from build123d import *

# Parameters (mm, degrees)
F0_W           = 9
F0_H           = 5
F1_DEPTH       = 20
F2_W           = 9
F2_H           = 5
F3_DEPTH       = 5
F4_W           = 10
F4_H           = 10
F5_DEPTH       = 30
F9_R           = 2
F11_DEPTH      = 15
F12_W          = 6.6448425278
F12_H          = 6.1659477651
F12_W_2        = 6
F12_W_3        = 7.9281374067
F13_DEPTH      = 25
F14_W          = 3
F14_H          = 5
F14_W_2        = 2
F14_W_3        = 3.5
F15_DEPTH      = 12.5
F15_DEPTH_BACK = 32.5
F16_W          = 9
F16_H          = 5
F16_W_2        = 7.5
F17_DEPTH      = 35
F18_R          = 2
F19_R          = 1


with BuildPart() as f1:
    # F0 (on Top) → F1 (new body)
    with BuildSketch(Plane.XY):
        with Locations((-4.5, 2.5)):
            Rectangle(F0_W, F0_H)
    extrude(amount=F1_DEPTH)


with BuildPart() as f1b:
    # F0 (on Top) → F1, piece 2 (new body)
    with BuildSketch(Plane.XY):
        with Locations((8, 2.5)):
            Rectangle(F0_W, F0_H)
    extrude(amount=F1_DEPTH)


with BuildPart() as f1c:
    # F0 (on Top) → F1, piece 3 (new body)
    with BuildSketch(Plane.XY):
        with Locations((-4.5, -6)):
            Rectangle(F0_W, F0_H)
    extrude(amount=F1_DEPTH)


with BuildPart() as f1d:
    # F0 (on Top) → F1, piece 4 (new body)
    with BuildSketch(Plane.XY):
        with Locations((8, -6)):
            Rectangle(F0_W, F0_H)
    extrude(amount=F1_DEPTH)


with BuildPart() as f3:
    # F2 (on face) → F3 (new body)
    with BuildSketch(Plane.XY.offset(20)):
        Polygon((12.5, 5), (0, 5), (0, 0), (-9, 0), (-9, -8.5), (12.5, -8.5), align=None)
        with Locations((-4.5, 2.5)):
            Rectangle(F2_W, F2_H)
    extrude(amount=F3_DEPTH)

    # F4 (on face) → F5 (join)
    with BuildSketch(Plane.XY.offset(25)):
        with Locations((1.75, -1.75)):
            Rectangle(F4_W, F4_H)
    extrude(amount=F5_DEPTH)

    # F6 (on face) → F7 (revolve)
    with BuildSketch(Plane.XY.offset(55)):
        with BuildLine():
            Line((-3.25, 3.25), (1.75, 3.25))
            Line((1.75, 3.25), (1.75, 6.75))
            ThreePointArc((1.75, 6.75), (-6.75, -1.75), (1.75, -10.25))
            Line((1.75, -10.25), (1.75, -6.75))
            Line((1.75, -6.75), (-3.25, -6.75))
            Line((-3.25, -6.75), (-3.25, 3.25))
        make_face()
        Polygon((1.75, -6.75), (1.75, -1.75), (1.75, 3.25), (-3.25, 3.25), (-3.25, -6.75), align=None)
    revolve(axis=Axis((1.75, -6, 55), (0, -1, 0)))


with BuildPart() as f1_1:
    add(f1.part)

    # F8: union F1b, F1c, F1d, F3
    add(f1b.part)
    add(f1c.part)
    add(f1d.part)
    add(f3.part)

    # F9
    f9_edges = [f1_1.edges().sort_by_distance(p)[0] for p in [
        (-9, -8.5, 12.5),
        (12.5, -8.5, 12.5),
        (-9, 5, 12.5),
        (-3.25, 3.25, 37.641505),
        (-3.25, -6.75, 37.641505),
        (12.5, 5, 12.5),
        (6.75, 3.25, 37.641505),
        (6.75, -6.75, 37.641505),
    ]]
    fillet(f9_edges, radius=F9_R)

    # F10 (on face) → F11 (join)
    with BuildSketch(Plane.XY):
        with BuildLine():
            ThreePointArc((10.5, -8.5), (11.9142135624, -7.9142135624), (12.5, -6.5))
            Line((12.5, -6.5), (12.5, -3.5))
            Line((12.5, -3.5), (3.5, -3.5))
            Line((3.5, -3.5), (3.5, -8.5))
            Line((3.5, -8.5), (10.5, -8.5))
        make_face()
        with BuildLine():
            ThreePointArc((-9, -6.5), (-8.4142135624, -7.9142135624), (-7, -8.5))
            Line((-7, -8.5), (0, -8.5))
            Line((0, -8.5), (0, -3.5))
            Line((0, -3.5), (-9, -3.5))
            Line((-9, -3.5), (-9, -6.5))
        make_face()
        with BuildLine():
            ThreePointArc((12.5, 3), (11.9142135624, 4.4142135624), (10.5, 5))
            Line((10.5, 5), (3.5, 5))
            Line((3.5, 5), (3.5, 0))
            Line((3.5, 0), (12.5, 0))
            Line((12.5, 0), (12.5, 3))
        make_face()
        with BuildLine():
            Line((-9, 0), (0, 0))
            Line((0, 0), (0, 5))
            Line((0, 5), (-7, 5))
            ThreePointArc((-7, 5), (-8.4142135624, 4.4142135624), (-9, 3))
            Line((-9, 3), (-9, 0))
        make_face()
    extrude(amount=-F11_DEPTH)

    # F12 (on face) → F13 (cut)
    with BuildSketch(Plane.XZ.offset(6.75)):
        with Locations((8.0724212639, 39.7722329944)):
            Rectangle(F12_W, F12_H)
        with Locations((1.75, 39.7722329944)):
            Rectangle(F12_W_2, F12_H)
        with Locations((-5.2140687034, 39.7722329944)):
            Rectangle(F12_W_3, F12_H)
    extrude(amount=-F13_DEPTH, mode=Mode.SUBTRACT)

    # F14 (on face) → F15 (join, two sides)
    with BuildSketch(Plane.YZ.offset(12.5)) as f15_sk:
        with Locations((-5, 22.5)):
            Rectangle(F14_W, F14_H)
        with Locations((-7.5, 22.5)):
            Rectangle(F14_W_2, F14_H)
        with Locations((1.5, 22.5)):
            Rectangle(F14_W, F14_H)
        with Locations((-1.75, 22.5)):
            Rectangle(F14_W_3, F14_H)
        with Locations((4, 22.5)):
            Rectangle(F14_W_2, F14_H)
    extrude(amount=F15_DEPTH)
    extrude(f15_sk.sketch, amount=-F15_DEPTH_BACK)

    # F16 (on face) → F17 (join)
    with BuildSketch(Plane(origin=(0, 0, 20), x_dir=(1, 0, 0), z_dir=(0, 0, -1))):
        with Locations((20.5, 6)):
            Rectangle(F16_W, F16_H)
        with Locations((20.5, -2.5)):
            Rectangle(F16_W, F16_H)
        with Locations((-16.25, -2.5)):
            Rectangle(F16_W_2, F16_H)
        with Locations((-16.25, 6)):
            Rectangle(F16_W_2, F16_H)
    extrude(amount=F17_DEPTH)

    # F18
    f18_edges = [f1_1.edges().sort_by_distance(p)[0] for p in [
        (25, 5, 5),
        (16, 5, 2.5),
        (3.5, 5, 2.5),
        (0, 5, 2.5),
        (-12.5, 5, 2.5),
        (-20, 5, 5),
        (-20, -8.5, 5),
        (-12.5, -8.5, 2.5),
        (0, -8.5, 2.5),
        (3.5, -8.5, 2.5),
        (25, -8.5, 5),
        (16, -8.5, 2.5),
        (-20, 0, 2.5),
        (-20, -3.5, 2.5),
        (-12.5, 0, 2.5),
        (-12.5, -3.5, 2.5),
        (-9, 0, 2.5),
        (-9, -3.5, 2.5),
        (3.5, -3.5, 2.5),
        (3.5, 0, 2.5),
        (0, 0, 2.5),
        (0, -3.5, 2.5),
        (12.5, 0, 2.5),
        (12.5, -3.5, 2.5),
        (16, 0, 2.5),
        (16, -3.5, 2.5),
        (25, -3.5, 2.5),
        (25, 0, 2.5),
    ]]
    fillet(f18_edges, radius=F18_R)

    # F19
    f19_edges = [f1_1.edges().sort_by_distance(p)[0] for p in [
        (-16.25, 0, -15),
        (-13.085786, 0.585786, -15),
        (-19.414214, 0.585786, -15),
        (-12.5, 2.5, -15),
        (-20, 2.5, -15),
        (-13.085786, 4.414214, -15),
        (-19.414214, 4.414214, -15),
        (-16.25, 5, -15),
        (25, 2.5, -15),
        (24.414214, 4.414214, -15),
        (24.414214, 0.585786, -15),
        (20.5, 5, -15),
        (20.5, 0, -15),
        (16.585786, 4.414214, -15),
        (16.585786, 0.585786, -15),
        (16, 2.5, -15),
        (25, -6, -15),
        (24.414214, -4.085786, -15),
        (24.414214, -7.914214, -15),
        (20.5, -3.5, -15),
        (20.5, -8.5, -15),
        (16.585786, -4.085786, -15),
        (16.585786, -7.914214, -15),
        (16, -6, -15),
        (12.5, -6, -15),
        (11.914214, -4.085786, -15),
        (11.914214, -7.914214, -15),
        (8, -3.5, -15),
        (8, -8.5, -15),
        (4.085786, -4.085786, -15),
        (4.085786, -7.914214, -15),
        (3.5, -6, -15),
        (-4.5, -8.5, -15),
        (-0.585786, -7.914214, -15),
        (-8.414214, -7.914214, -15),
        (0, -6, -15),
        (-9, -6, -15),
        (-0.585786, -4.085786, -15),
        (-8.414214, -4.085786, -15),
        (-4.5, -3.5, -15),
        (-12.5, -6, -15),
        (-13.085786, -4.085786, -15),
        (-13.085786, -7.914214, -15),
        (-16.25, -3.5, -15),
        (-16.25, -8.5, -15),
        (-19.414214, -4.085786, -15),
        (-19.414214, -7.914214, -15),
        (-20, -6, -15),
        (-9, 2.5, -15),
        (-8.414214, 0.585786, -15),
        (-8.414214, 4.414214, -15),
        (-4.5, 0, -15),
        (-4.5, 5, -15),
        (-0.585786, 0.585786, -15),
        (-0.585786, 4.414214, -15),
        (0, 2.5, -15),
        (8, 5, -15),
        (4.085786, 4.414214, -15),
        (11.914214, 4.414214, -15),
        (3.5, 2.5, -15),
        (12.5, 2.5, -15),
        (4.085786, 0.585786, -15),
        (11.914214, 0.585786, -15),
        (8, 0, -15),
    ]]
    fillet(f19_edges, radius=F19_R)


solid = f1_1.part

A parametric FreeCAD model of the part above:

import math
import FreeCAD as App
import Part
import Sketcher

V = App.Vector


def edges_at(feature, points):
    """Names of the edges that pass closest to the given points."""
    edges = feature.Shape.Edges
    near = lambda p: min(range(len(edges)), key=lambda i: edges[i].distToShape(Part.Vertex(*p))[0])
    return sorted({f"Edge{near(p) + 1}" for p in points})

doc = App.newDocument("Part")
body = doc.addObject("PartDesign::Body", "Body")

sketch1 = doc.addObject("Sketcher::SketchObject", "Sketch")
body.addObject(sketch1)
sketch1.AttachmentSupport = (doc.XY_Plane, [""])
sketch1.MapMode = "FlatFace"
sketch1.addGeometry([
    Part.LineSegment(V(-9, 5, 0), V(-9, 0, 0)),
    Part.LineSegment(V(-9, 0, 0), V(0, 0, 0)),
    Part.LineSegment(V(0, 0, 0), V(0, 5, 0)),
    Part.LineSegment(V(0, 5, 0), V(-9, 5, 0)),
], False)
sketch1.addConstraint([
    Sketcher.Constraint("Coincident", 0, 2, 1, 1),
    Sketcher.Constraint("Coincident", 1, 2, 2, 1),
    Sketcher.Constraint("Coincident", 2, 2, 3, 1),
    Sketcher.Constraint("Coincident", 3, 2, 0, 1),
    Sketcher.Constraint("Vertical", 0),
    Sketcher.Constraint("Horizontal", 1),
    Sketcher.Constraint("Vertical", 2),
    Sketcher.Constraint("Horizontal", 3),
    Sketcher.Constraint("Coincident", 1, 2, -1, 1),
    Sketcher.Constraint("DistanceX", 1, 1, 1, 2, 9.0),
    Sketcher.Constraint("DistanceY", 0, 2, 0, 1, 5.0),
])
pad1 = doc.addObject("PartDesign::Pad", "Pad")
body.addObject(pad1)
pad1.Profile = sketch1
pad1.Length = 20
body2 = doc.addObject("PartDesign::Body", "Body001")

sketch2 = doc.addObject("Sketcher::SketchObject", "Sketch001")
body2.addObject(sketch2)
sketch2.AttachmentSupport = (doc.getObject("XY_Plane001"), [""])
sketch2.MapMode = "FlatFace"
sketch2.addGeometry([
    Part.LineSegment(V(3.5, 5, 0), V(3.5, 0, 0)),
    Part.LineSegment(V(3.5, 0, 0), V(12.5, 0, 0)),
    Part.LineSegment(V(12.5, 0, 0), V(12.5, 5, 0)),
    Part.LineSegment(V(12.5, 5, 0), V(3.5, 5, 0)),
], False)
sketch2.addConstraint([
    Sketcher.Constraint("Coincident", 0, 2, 1, 1),
    Sketcher.Constraint("Coincident", 1, 2, 2, 1),
    Sketcher.Constraint("Coincident", 2, 2, 3, 1),
    Sketcher.Constraint("Coincident", 3, 2, 0, 1),
    Sketcher.Constraint("Vertical", 0),
    Sketcher.Constraint("Horizontal", 1),
    Sketcher.Constraint("Vertical", 2),
    Sketcher.Constraint("Horizontal", 3),
    Sketcher.Constraint("PointOnObject", 0, 2, -1),
    Sketcher.Constraint("DistanceX", 1, 1, 1, 2, 9.0),
    Sketcher.Constraint("DistanceY", 0, 2, 0, 1, 5.0),
    Sketcher.Constraint("DistanceX", -1, 1, 0, 2, 3.5),
])
pad2 = doc.addObject("PartDesign::Pad", "Pad001")
body2.addObject(pad2)
pad2.Profile = sketch2
pad2.Length = 20
body3 = doc.addObject("PartDesign::Body", "Body002")

sketch3 = doc.addObject("Sketcher::SketchObject", "Sketch002")
body3.addObject(sketch3)
sketch3.AttachmentSupport = (doc.getObject("XY_Plane002"), [""])
sketch3.MapMode = "FlatFace"
sketch3.addGeometry([
    Part.LineSegment(V(-9, -3.5, 0), V(-9, -8.5, 0)),
    Part.LineSegment(V(-9, -8.5, 0), V(0, -8.5, 0)),
    Part.LineSegment(V(0, -8.5, 0), V(0, -3.5, 0)),
    Part.LineSegment(V(0, -3.5, 0), V(-9, -3.5, 0)),
], False)
sketch3.addConstraint([
    Sketcher.Constraint("Coincident", 0, 2, 1, 1),
    Sketcher.Constraint("Coincident", 1, 2, 2, 1),
    Sketcher.Constraint("Coincident", 2, 2, 3, 1),
    Sketcher.Constraint("Coincident", 3, 2, 0, 1),
    Sketcher.Constraint("Vertical", 0),
    Sketcher.Constraint("Horizontal", 1),
    Sketcher.Constraint("Vertical", 2),
    Sketcher.Constraint("Horizontal", 3),
    Sketcher.Constraint("PointOnObject", 1, 2, -2),
    Sketcher.Constraint("DistanceX", 1, 1, 1, 2, 9.0),
    Sketcher.Constraint("DistanceY", 0, 2, 0, 1, 5.0),
    Sketcher.Constraint("DistanceY", 0, 2, -1, 1, 8.5),
])
pad3 = doc.addObject("PartDesign::Pad", "Pad002")
body3.addObject(pad3)
pad3.Profile = sketch3
pad3.Length = 20
body4 = doc.addObject("PartDesign::Body", "Body003")

sketch4 = doc.addObject("Sketcher::SketchObject", "Sketch003")
body4.addObject(sketch4)
sketch4.AttachmentSupport = (doc.getObject("XY_Plane003"), [""])
sketch4.MapMode = "FlatFace"
sketch4.addGeometry([
    Part.LineSegment(V(3.5, -3.5, 0), V(3.5, -8.5, 0)),
    Part.LineSegment(V(3.5, -8.5, 0), V(12.5, -8.5, 0)),
    Part.LineSegment(V(12.5, -8.5, 0), V(12.5, -3.5, 0)),
    Part.LineSegment(V(12.5, -3.5, 0), V(3.5, -3.5, 0)),
], False)
sketch4.addConstraint([
    Sketcher.Constraint("Coincident", 0, 2, 1, 1),
    Sketcher.Constraint("Coincident", 1, 2, 2, 1),
    Sketcher.Constraint("Coincident", 2, 2, 3, 1),
    Sketcher.Constraint("Coincident", 3, 2, 0, 1),
    Sketcher.Constraint("Vertical", 0),
    Sketcher.Constraint("Horizontal", 1),
    Sketcher.Constraint("Vertical", 2),
    Sketcher.Constraint("Horizontal", 3),
    Sketcher.Constraint("DistanceX", 1, 1, 1, 2, 9.0),
    Sketcher.Constraint("DistanceY", 0, 2, 0, 1, 5.0),
    Sketcher.Constraint("DistanceX", -1, 1, 0, 2, 3.5),
    Sketcher.Constraint("DistanceY", 0, 2, -1, 1, 8.5),
])
pad4 = doc.addObject("PartDesign::Pad", "Pad003")
body4.addObject(pad4)
pad4.Profile = sketch4
pad4.Length = 20
body5 = doc.addObject("PartDesign::Body", "Body004")

sketch5 = doc.addObject("Sketcher::SketchObject", "Sketch004")
body5.addObject(sketch5)
sketch5.AttachmentSupport = (doc.getObject("XY_Plane004"), [""])
sketch5.MapMode = "FlatFace"
sketch5.AttachmentOffset = App.Placement(V(0, 0, 20), App.Rotation())
sketch5.addGeometry([
    Part.LineSegment(V(12.5, 5, 0), V(-9, 5, 0)),
    Part.LineSegment(V(-9, 5, 0), V(-9, -8.5, 0)),
    Part.LineSegment(V(-9, -8.5, 0), V(12.5, -8.5, 0)),
    Part.LineSegment(V(12.5, -8.5, 0), V(12.5, 5, 0)),
], False)
sketch5.addConstraint([
    Sketcher.Constraint("Coincident", 0, 2, 1, 1),
    Sketcher.Constraint("Coincident", 1, 2, 2, 1),
    Sketcher.Constraint("Coincident", 2, 2, 3, 1),
    Sketcher.Constraint("Coincident", 3, 2, 0, 1),
    Sketcher.Constraint("Horizontal", 0),
    Sketcher.Constraint("Vertical", 1),
    Sketcher.Constraint("Horizontal", 2),
    Sketcher.Constraint("Vertical", 3),
    Sketcher.Constraint("DistanceX", 0, 2, 0, 1, 21.5),
    Sketcher.Constraint("DistanceY", 1, 2, 1, 1, 13.5),
    Sketcher.Constraint("DistanceX", 0, 2, -1, 1, 9.0),
    Sketcher.Constraint("DistanceY", -1, 1, 0, 2, 5.0),
])
pad5 = doc.addObject("PartDesign::Pad", "Pad004")
body5.addObject(pad5)
pad5.Profile = sketch5
pad5.Length = 5

sketch6 = doc.addObject("Sketcher::SketchObject", "Sketch005")
body5.addObject(sketch6)
sketch6.AttachmentSupport = (doc.getObject("XY_Plane004"), [""])
sketch6.MapMode = "FlatFace"
sketch6.AttachmentOffset = App.Placement(V(0, 0, 25), App.Rotation())
sketch6.addGeometry([
    Part.LineSegment(V(-3.25, 3.25, 0), V(-3.25, -6.75, 0)),
    Part.LineSegment(V(-3.25, -6.75, 0), V(6.75, -6.75, 0)),
    Part.LineSegment(V(6.75, -6.75, 0), V(6.75, 3.25, 0)),
    Part.LineSegment(V(6.75, 3.25, 0), V(-3.25, 3.25, 0)),
], False)
sketch6.addConstraint([
    Sketcher.Constraint("Coincident", 0, 2, 1, 1),
    Sketcher.Constraint("Coincident", 1, 2, 2, 1),
    Sketcher.Constraint("Coincident", 2, 2, 3, 1),
    Sketcher.Constraint("Coincident", 3, 2, 0, 1),
    Sketcher.Constraint("Vertical", 0),
    Sketcher.Constraint("Horizontal", 1),
    Sketcher.Constraint("Vertical", 2),
    Sketcher.Constraint("Horizontal", 3),
    Sketcher.Constraint("Equal", 3, 0),
    Sketcher.Constraint("DistanceX", 1, 1, 1, 2, 10.0),
    Sketcher.Constraint("DistanceX", 0, 2, -1, 1, 3.25),
    Sketcher.Constraint("DistanceY", 0, 2, -1, 1, 6.75),
])
pad6 = doc.addObject("PartDesign::Pad", "Pad005")
body5.addObject(pad6)
pad6.Profile = sketch6
pad6.Length = 30

sketch7 = doc.addObject("Sketcher::SketchObject", "Sketch006")
body5.addObject(sketch7)
sketch7.AttachmentSupport = (doc.getObject("XY_Plane004"), [""])
sketch7.MapMode = "FlatFace"
sketch7.AttachmentOffset = App.Placement(V(0, 0, 55), App.Rotation())
sketch7.addGeometry([
    Part.ArcOfCircle(Part.Circle(V(1.75, -1.75, 0), V(0, 0, 1), 8.5), math.radians(90), math.radians(270)),
    Part.LineSegment(V(1.75, -10.25, 0), V(1.75, 6.75, 0)),
], False)
sketch7.addGeometry(Part.LineSegment(V(1.75, 6.75, 0), V(1.75, -10.25, 0)), True)
sketch7.addConstraint([
    Sketcher.Constraint("Coincident", 0, 1, 1, 2),
    Sketcher.Constraint("Coincident", 1, 1, 0, 2),
    Sketcher.Constraint("Vertical", 1),
    Sketcher.Constraint("Vertical", 2),
    Sketcher.Constraint("Coincident", 2, 1, 0, 1),
    Sketcher.Constraint("Equal", 1, 2),
    Sketcher.Constraint("Radius", 0, 8.5),
    Sketcher.Constraint("DistanceX", -1, 1, 0, 3, 1.75),
    Sketcher.Constraint("DistanceY", 0, 3, -1, 1, 1.75),
    Sketcher.Constraint("DistanceX", -1, 1, 0, 1, 1.75),
])
revolution = doc.addObject("PartDesign::Revolution", "Revolution")
body5.addObject(revolution)
revolution.Profile = sketch7
revolution.ReferenceAxis = (sketch7, ["Axis0"])
revolution.Angle = 360
body.AllowCompound = True
doc.recompute()

boolean = doc.addObject("PartDesign::Boolean", "Boolean")
body.addObject(boolean)
boolean.Type = "Fuse"
boolean.addObjects([body2])
doc.recompute()

boolean2 = doc.addObject("PartDesign::Boolean", "Boolean001")
body.addObject(boolean2)
boolean2.Type = "Fuse"
boolean2.addObjects([body3])
doc.recompute()

boolean3 = doc.addObject("PartDesign::Boolean", "Boolean002")
body.addObject(boolean3)
boolean3.Type = "Fuse"
boolean3.addObjects([body4])
doc.recompute()

boolean4 = doc.addObject("PartDesign::Boolean", "Boolean003")
body.addObject(boolean4)
boolean4.Type = "Fuse"
boolean4.addObjects([body5])
doc.recompute()

fillet = doc.addObject("PartDesign::Fillet", "Fillet")
body.addObject(fillet)
fillet.Base = (boolean4, edges_at(boolean4, [
    (-9, -8.5, 12.5),
    (12.5, -8.5, 12.5),
    (-9, 5, 12.5),
    (-3.25, 3.25, 37.642),
    (-3.25, -6.75, 37.642),
    (12.5, 5, 12.5),
    (6.75, 3.25, 37.642),
    (6.75, -6.75, 37.642),
]))
fillet.Radius = 2

sketch8 = doc.addObject("Sketcher::SketchObject", "Sketch007")
body.addObject(sketch8)
sketch8.AttachmentSupport = (doc.XY_Plane, [""])
sketch8.MapMode = "FlatFace"
sketch8.addGeometry([
    Part.ArcOfCircle(Part.Circle(V(10.5, -6.5, 0), V(0, 0, 1), 2), math.radians(-90), math.radians(0)),
    Part.LineSegment(V(12.5, -6.5, 0), V(12.5, -3.5, 0)),
    Part.LineSegment(V(12.5, -3.5, 0), V(3.5, -3.5, 0)),
    Part.LineSegment(V(3.5, -3.5, 0), V(3.5, -8.5, 0)),
    Part.LineSegment(V(3.5, -8.5, 0), V(10.5, -8.5, 0)),
    Part.ArcOfCircle(Part.Circle(V(-7, -6.5, 0), V(0, 0, 1), 2), math.radians(180), math.radians(270)),
    Part.LineSegment(V(-7, -8.5, 0), V(0, -8.5, 0)),
    Part.LineSegment(V(0, -8.5, 0), V(0, -3.5, 0)),
    Part.LineSegment(V(0, -3.5, 0), V(-9, -3.5, 0)),
    Part.LineSegment(V(-9, -3.5, 0), V(-9, -6.5, 0)),
    Part.ArcOfCircle(Part.Circle(V(10.5, 3, 0), V(0, 0, 1), 2), math.radians(0), math.radians(90)),
    Part.LineSegment(V(10.5, 5, 0), V(3.5, 5, 0)),
    Part.LineSegment(V(3.5, 5, 0), V(3.5, 0, 0)),
    Part.LineSegment(V(3.5, 0, 0), V(12.5, 0, 0)),
    Part.LineSegment(V(12.5, 0, 0), V(12.5, 3, 0)),
    Part.LineSegment(V(-9, 0, 0), V(0, 0, 0)),
    Part.LineSegment(V(0, 0, 0), V(0, 5, 0)),
    Part.LineSegment(V(0, 5, 0), V(-7, 5, 0)),
    Part.ArcOfCircle(Part.Circle(V(-7, 3, 0), V(0, 0, 1), 2), math.radians(90), math.radians(180)),
    Part.LineSegment(V(-9, 3, 0), V(-9, 0, 0)),
], False)
sketch8.addConstraint([
    Sketcher.Constraint("Tangent", 0, 2, 1, 1),
    Sketcher.Constraint("Coincident", 1, 2, 2, 1),
    Sketcher.Constraint("Coincident", 2, 2, 3, 1),
    Sketcher.Constraint("Coincident", 3, 2, 4, 1),
    Sketcher.Constraint("Tangent", 4, 2, 0, 1),
    Sketcher.Constraint("Tangent", 5, 2, 6, 1),
    Sketcher.Constraint("Coincident", 6, 2, 7, 1),
    Sketcher.Constraint("Coincident", 7, 2, 8, 1),
    Sketcher.Constraint("Coincident", 8, 2, 9, 1),
    Sketcher.Constraint("Tangent", 9, 2, 5, 1),
    Sketcher.Constraint("Tangent", 10, 2, 11, 1),
    Sketcher.Constraint("Coincident", 11, 2, 12, 1),
    Sketcher.Constraint("Coincident", 12, 2, 13, 1),
    Sketcher.Constraint("Coincident", 13, 2, 14, 1),
    Sketcher.Constraint("Tangent", 14, 2, 10, 1),
    Sketcher.Constraint("Coincident", 15, 2, 16, 1),
    Sketcher.Constraint("Coincident", 16, 2, 17, 1),
    Sketcher.Constraint("Tangent", 17, 2, 18, 1),
    Sketcher.Constraint("Tangent", 18, 2, 19, 1),
    Sketcher.Constraint("Coincident", 19, 2, 15, 1),
    Sketcher.Constraint("Vertical", 1),
    Sketcher.Constraint("Horizontal", 2),
    Sketcher.Constraint("Vertical", 3),
    Sketcher.Constraint("Horizontal", 4),
    Sketcher.Constraint("Horizontal", 6),
    Sketcher.Constraint("Vertical", 7),
    Sketcher.Constraint("Horizontal", 8),
    Sketcher.Constraint("Vertical", 9),
    Sketcher.Constraint("Horizontal", 11),
    Sketcher.Constraint("Vertical", 12),
    Sketcher.Constraint("Horizontal", 13),
    Sketcher.Constraint("Vertical", 14),
    Sketcher.Constraint("Horizontal", 15),
    Sketcher.Constraint("Vertical", 16),
    Sketcher.Constraint("Horizontal", 17),
    Sketcher.Constraint("Vertical", 19),
    Sketcher.Constraint("Coincident", 15, 2, -1, 1),
    Sketcher.Constraint("Equal", 0, 5),
    Sketcher.Constraint("Equal", 5, 10),
    Sketcher.Constraint("Equal", 10, 18),
    Sketcher.Constraint("PointOnObject", 6, 2, -2),
    Sketcher.Constraint("PointOnObject", 12, 2, -1),
    Sketcher.Constraint("Horizontal", 0, 3, 5, 3),
    Sketcher.Constraint("Horizontal", 10, 3, 18, 3),
    Sketcher.Constraint("Horizontal", 2, 2, 7, 2),
    Sketcher.Constraint("Vertical", 0, 3, 10, 3),
    Sketcher.Constraint("Vertical", 5, 3, 18, 3),
    Sketcher.Constraint("Vertical", 3, 2, 11, 2),
    Sketcher.Constraint("Equal", 4, 6),
    Sketcher.Constraint("Equal", 7, 12),
    Sketcher.Constraint("Radius", 0, 2.0),
    Sketcher.Constraint("DistanceX", 2, 2, 2, 1, 9.0),
    Sketcher.Constraint("DistanceY", 1, 1, 1, 2, 3.0),
    Sketcher.Constraint("DistanceX", -1, 1, 0, 3, 10.5),
    Sketcher.Constraint("DistanceY", 0, 3, -1, 1, 6.5),
])
pad7 = doc.addObject("PartDesign::Pad", "Pad006")
body.addObject(pad7)
pad7.Profile = sketch8
pad7.Length = 15
pad7.Reversed = True

sketch9 = doc.addObject("Sketcher::SketchObject", "Sketch008")
body.addObject(sketch9)
sketch9.AttachmentSupport = (doc.XZ_Plane, [""])
sketch9.MapMode = "FlatFace"
sketch9.AttachmentOffset = App.Placement(V(0, 0, 6.75), App.Rotation())
sketch9.addGeometry([
    Part.LineSegment(V(11.394843, 36.689259, 0), V(11.394843, 42.855207, 0)),
    Part.LineSegment(V(11.394843, 42.855207, 0), V(-9.178137, 42.855207, 0)),
    Part.LineSegment(V(-9.178137, 42.855207, 0), V(-9.178137, 36.689259, 0)),
    Part.LineSegment(V(-9.178137, 36.689259, 0), V(11.394843, 36.689259, 0)),
], False)
sketch9.addConstraint([
    Sketcher.Constraint("Coincident", 0, 2, 1, 1),
    Sketcher.Constraint("Coincident", 1, 2, 2, 1),
    Sketcher.Constraint("Coincident", 2, 2, 3, 1),
    Sketcher.Constraint("Coincident", 3, 2, 0, 1),
    Sketcher.Constraint("Vertical", 0),
    Sketcher.Constraint("Horizontal", 1),
    Sketcher.Constraint("Vertical", 2),
    Sketcher.Constraint("Horizontal", 3),
    Sketcher.Constraint("DistanceX", 1, 2, 1, 1, 20.57298),
    Sketcher.Constraint("DistanceY", 0, 1, 0, 2, 6.165948),
    Sketcher.Constraint("DistanceY", -1, 1, 2, 2, 36.689259),
    Sketcher.Constraint("DistanceX", -1, 1, 0, 2, 11.394843),
])
pocket1 = doc.addObject("PartDesign::Pocket", "Pocket")
body.addObject(pocket1)
pocket1.Profile = sketch9
pocket1.Length = 25

sketch10 = doc.addObject("Sketcher::SketchObject", "Sketch009")
body.addObject(sketch10)
sketch10.AttachmentSupport = (doc.YZ_Plane, [""])
sketch10.MapMode = "FlatFace"
sketch10.AttachmentOffset = App.Placement(V(0, 0, 12.5), App.Rotation())
sketch10.addGeometry([
    Part.LineSegment(V(-8.5, 25, 0), V(-8.5, 20, 0)),
    Part.LineSegment(V(-8.5, 20, 0), V(5, 20, 0)),
    Part.LineSegment(V(5, 20, 0), V(5, 25, 0)),
    Part.LineSegment(V(5, 25, 0), V(-8.5, 25, 0)),
], False)
sketch10.addConstraint([
    Sketcher.Constraint("Coincident", 0, 2, 1, 1),
    Sketcher.Constraint("Coincident", 1, 2, 2, 1),
    Sketcher.Constraint("Coincident", 2, 2, 3, 1),
    Sketcher.Constraint("Coincident", 3, 2, 0, 1),
    Sketcher.Constraint("Vertical", 0),
    Sketcher.Constraint("Horizontal", 1),
    Sketcher.Constraint("Vertical", 2),
    Sketcher.Constraint("Horizontal", 3),
    Sketcher.Constraint("DistanceY", 0, 2, 0, 1, 5.0),
    Sketcher.Constraint("DistanceX", 1, 1, 1, 2, 13.5),
    Sketcher.Constraint("DistanceY", -1, 1, 0, 2, 20.0),
    Sketcher.Constraint("DistanceX", -1, 1, 1, 2, 5.0),
])
pad8 = doc.addObject("PartDesign::Pad", "Pad007")
body.addObject(pad8)
pad8.Profile = sketch10
pad8.Type = "TwoLengths"
pad8.Length = 12.5
pad8.Length2 = 32.5

sketch11 = doc.addObject("Sketcher::SketchObject", "Sketch010")
body.addObject(sketch11)
sketch11.AttachmentSupport = (doc.XY_Plane, [""])
sketch11.MapMode = "FlatFace"
sketch11.AttachmentOffset = App.Placement(V(0, 0, 20), App.Rotation())
sketch11.addGeometry([
    Part.LineSegment(V(16, -8.5, 0), V(16, -3.5, 0)),
    Part.LineSegment(V(16, -3.5, 0), V(25, -3.5, 0)),
    Part.LineSegment(V(25, -3.5, 0), V(25, -8.5, 0)),
    Part.LineSegment(V(25, -8.5, 0), V(16, -8.5, 0)),
    Part.LineSegment(V(16, 0, 0), V(16, 5, 0)),
    Part.LineSegment(V(16, 5, 0), V(25, 5, 0)),
    Part.LineSegment(V(25, 5, 0), V(25, 0, 0)),
    Part.LineSegment(V(25, 0, 0), V(16, 0, 0)),
    Part.LineSegment(V(-20, 0, 0), V(-20, 5, 0)),
    Part.LineSegment(V(-20, 5, 0), V(-12.5, 5, 0)),
    Part.LineSegment(V(-12.5, 5, 0), V(-12.5, 0, 0)),
    Part.LineSegment(V(-12.5, 0, 0), V(-20, 0, 0)),
    Part.LineSegment(V(-20, -8.5, 0), V(-20, -3.5, 0)),
    Part.LineSegment(V(-20, -3.5, 0), V(-12.5, -3.5, 0)),
    Part.LineSegment(V(-12.5, -3.5, 0), V(-12.5, -8.5, 0)),
    Part.LineSegment(V(-12.5, -8.5, 0), V(-20, -8.5, 0)),
], False)
sketch11.addConstraint([
    Sketcher.Constraint("Coincident", 0, 2, 1, 1),
    Sketcher.Constraint("Coincident", 1, 2, 2, 1),
    Sketcher.Constraint("Coincident", 2, 2, 3, 1),
    Sketcher.Constraint("Coincident", 3, 2, 0, 1),
    Sketcher.Constraint("Coincident", 4, 2, 5, 1),
    Sketcher.Constraint("Coincident", 5, 2, 6, 1),
    Sketcher.Constraint("Coincident", 6, 2, 7, 1),
    Sketcher.Constraint("Coincident", 7, 2, 4, 1),
    Sketcher.Constraint("Coincident", 8, 2, 9, 1),
    Sketcher.Constraint("Coincident", 9, 2, 10, 1),
    Sketcher.Constraint("Coincident", 10, 2, 11, 1),
    Sketcher.Constraint("Coincident", 11, 2, 8, 1),
    Sketcher.Constraint("Coincident", 12, 2, 13, 1),
    Sketcher.Constraint("Coincident", 13, 2, 14, 1),
    Sketcher.Constraint("Coincident", 14, 2, 15, 1),
    Sketcher.Constraint("Coincident", 15, 2, 12, 1),
    Sketcher.Constraint("Vertical", 0),
    Sketcher.Constraint("Horizontal", 1),
    Sketcher.Constraint("Vertical", 2),
    Sketcher.Constraint("Horizontal", 3),
    Sketcher.Constraint("Vertical", 4),
    Sketcher.Constraint("Horizontal", 5),
    Sketcher.Constraint("Vertical", 6),
    Sketcher.Constraint("Horizontal", 7),
    Sketcher.Constraint("Vertical", 8),
    Sketcher.Constraint("Horizontal", 9),
    Sketcher.Constraint("Vertical", 10),
    Sketcher.Constraint("Horizontal", 11),
    Sketcher.Constraint("Vertical", 12),
    Sketcher.Constraint("Horizontal", 13),
    Sketcher.Constraint("Vertical", 14),
    Sketcher.Constraint("Horizontal", 15),
    Sketcher.Constraint("PointOnObject", 6, 2, -1),
    Sketcher.Constraint("PointOnObject", 10, 2, -1),
    Sketcher.Constraint("Horizontal", 5, 2, 8, 2),
    Sketcher.Constraint("Horizontal", 1, 2, 12, 2),
    Sketcher.Constraint("Horizontal", 3, 2, 14, 2),
    Sketcher.Constraint("Vertical", 3, 2, 4, 2),
    Sketcher.Constraint("Vertical", 2, 2, 5, 2),
    Sketcher.Constraint("Vertical", 11, 2, 12, 2),
    Sketcher.Constraint("Vertical", 10, 2, 13, 2),
    Sketcher.Constraint("Equal", 2, 4),
    Sketcher.Constraint("DistanceX", 1, 1, 1, 2, 9.0),
    Sketcher.Constraint("DistanceY", 0, 1, 0, 2, 5.0),
    Sketcher.Constraint("DistanceX", 9, 1, 9, 2, 7.5),
    Sketcher.Constraint("DistanceX", -1, 1, 0, 2, 16.0),
    Sketcher.Constraint("DistanceX", 8, 2, -1, 1, 20.0),
    Sketcher.Constraint("DistanceY", 0, 2, -1, 1, 3.5),
])
pad9 = doc.addObject("PartDesign::Pad", "Pad008")
body.addObject(pad9)
pad9.Profile = sketch11
pad9.Length = 35
pad9.Reversed = True
doc.recompute()

fillet2 = doc.addObject("PartDesign::Fillet", "Fillet001")
body.addObject(fillet2)
fillet2.Base = (pad9, edges_at(pad9, [
    (25, 5, 5),
    (16, 5, 2.5),
    (3.5, 5, 2.5),
    (0, 5, 2.5),
    (-12.5, 5, 2.5),
    (-20, 5, 5),
    (-20, -8.5, 5),
    (-12.5, -8.5, 2.5),
    (0, -8.5, 2.5),
    (3.5, -8.5, 2.5),
    (25, -8.5, 5),
    (16, -8.5, 2.5),
    (-20, 0, 2.5),
    (-20, -3.5, 2.5),
    (-12.5, 0, 2.5),
    (-12.5, -3.5, 2.5),
    (-9, 0, 2.5),
    (-9, -3.5, 2.5),
    (3.5, -3.5, 2.5),
    (3.5, 0, 2.5),
    (0, 0, 2.5),
    (0, -3.5, 2.5),
    (12.5, 0, 2.5),
    (12.5, -3.5, 2.5),
    (16, 0, 2.5),
    (16, -3.5, 2.5),
    (25, -3.5, 2.5),
    (25, 0, 2.5),
]))
fillet2.Radius = 2
doc.recompute()

fillet3 = doc.addObject("PartDesign::Fillet", "Fillet002")
body.addObject(fillet3)
fillet3.Base = (fillet2, edges_at(fillet2, [
    (-16.25, 0, -15),
    (-13.086, 0.586, -15),
    (-19.414, 0.586, -15),
    (-12.5, 2.5, -15),
    (-20, 2.5, -15),
    (-13.086, 4.414, -15),
    (-19.414, 4.414, -15),
    (-16.25, 5, -15),
    (25, 2.5, -15),
    (24.414, 4.414, -15),
    (24.414, 0.586, -15),
    (20.5, 5, -15),
    (20.5, 0, -15),
    (16.586, 4.414, -15),
    (16.586, 0.586, -15),
    (16, 2.5, -15),
    (25, -6, -15),
    (24.414, -4.086, -15),
    (24.414, -7.914, -15),
    (20.5, -3.5, -15),
    (20.5, -8.5, -15),
    (16.586, -4.086, -15),
    (16.586, -7.914, -15),
    (16, -6, -15),
    (12.5, -6, -15),
    (11.914, -4.086, -15),
    (11.914, -7.914, -15),
    (8, -3.5, -15),
    (8, -8.5, -15),
    (4.086, -4.086, -15),
    (4.086, -7.914, -15),
    (3.5, -6, -15),
    (-4.5, -8.5, -15),
    (-0.586, -7.914, -15),
    (-8.414, -7.914, -15),
    (0, -6, -15),
    (-9, -6, -15),
    (-0.586, -4.086, -15),
    (-8.414, -4.086, -15),
    (-4.5, -3.5, -15),
    (-12.5, -6, -15),
    (-13.086, -4.086, -15),
    (-13.086, -7.914, -15),
    (-16.25, -3.5, -15),
    (-16.25, -8.5, -15),
    (-19.414, -4.086, -15),
    (-19.414, -7.914, -15),
    (-20, -6, -15),
    (-9, 2.5, -15),
    (-8.414, 0.586, -15),
    (-8.414, 4.414, -15),
    (-4.5, 0, -15),
    (-4.5, 5, -15),
    (-0.586, 0.586, -15),
    (-0.586, 4.414, -15),
    (0, 2.5, -15),
    (8, 5, -15),
    (4.086, 4.414, -15),
    (11.914, 4.414, -15),
    (3.5, 2.5, -15),
    (12.5, 2.5, -15),
    (4.086, 0.586, -15),
    (11.914, 0.586, -15),
    (8, 0, -15),
]))
fillet3.Radius = 1

doc.recompute()
